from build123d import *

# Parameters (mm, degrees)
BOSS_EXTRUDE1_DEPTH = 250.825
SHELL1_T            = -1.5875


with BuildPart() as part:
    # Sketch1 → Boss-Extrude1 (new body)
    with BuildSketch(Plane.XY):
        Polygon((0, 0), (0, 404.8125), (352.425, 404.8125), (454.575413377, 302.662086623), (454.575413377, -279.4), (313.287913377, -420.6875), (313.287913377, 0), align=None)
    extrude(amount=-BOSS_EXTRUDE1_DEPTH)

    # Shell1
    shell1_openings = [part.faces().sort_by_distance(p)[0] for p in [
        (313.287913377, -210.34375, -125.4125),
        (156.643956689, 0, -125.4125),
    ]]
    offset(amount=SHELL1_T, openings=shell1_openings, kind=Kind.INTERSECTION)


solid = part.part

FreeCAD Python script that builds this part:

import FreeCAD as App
import Part
import Sketcher

V = App.Vector
Q = App.Units.Quantity


def faces_at(feature, points):
    """Names of the faces that lie closest to the given points."""
    faces = feature.Shape.Faces
    near = lambda p: min(range(len(faces)), key=lambda i: faces[i].distToShape(Part.Vertex(*p))[0])
    return sorted({f"Face{near(p) + 1}" for p in points})

doc = App.newDocument("Part")
body = doc.addObject("PartDesign::Body", "Body")

# Sketch on XY plane
sketch1 = body.newObject("Sketcher::SketchObject", "Sketch")
sketch1.AttachmentSupport = (doc.getObject("XY_Plane"), [""])
sketch1.MapMode = "FlatFace"
sketch1.addGeometry([
    Part.LineSegment(V(0, 404.8125, 0), V(0, 0, 0)),  # 0
    Part.LineSegment(V(0, 0, 0), V(313.287913, 0, 0)),  # 1
    Part.LineSegment(V(313.287913, 0, 0), V(313.287913, -420.6875, 0)),  # 2
    Part.LineSegment(V(313.287913, -420.6875, 0), V(454.575413, -279.4, 0)),  # 3
    Part.LineSegment(V(454.575413, -279.4, 0), V(454.575413, 302.662087, 0)),  # 4
    Part.LineSegment(V(454.575413, 302.662087, 0), V(352.425, 404.8125, 0)),  # 5
    Part.LineSegment(V(352.425, 404.8125, 0), V(0, 404.8125, 0)),  # 6
], False)
sketch1.addConstraint([
    Sketcher.Constraint("Coincident", 0, 2, 1, 1),
    Sketcher.Constraint("Coincident", 1, 2, 2, 1),
    Sketcher.Constraint("Coincident", 2, 2, 3, 1),
    Sketcher.Constraint("Coincident", 3, 2, 4, 1),
    Sketcher.Constraint("Coincident", 4, 2, 5, 1),
    Sketcher.Constraint("Coincident", 5, 2, 6, 1),
    Sketcher.Constraint("Coincident", 6, 2, 0, 1),
    Sketcher.Constraint("Vertical", 0),
    Sketcher.Constraint("Horizontal", 1),
    Sketcher.Constraint("Vertical", 2),
    Sketcher.Constraint("Vertical", 4),
    Sketcher.Constraint("Horizontal", 6),
    Sketcher.Constraint("Coincident", 0, 2, -1, 1),
    Sketcher.Constraint("Perpendicular", 3, 5),
    Sketcher.Constraint("DistanceY", 3, 2, -1, 1, Q("11 in")),
    Sketcher.Constraint("Angle", 3, Q("45 deg")),
    Sketcher.Constraint("DistanceY", 2, 2, 5, 2, Q("32.5 in")),
    Sketcher.Constraint("DistanceX", 6, 2, 6, 1, Q("13.875 in")),
    Sketcher.Constraint("DistanceY", 0, 2, 0, 1, Q("15.9375 in")),
    Sketcher.Constraint("Distance", 5, Q("5.6875 in")),
])
pad1 = body.newObject("PartDesign::Pad", "Pad")
pad1.Profile = sketch1
pad1.Length = Q("9.875 in")
pad1.Reversed = True
doc.recompute()

thickness = body.newObject("PartDesign::Thickness", "Thickness")
thickness.Base = (pad1, faces_at(pad1, [(313.288, -210.344, -125.412), (156.644, 0, -125.412)]))
thickness.Value = Q("0.0625 in")
thickness.Reversed = True
thickness.Join = "Intersection"

doc.recompute()
